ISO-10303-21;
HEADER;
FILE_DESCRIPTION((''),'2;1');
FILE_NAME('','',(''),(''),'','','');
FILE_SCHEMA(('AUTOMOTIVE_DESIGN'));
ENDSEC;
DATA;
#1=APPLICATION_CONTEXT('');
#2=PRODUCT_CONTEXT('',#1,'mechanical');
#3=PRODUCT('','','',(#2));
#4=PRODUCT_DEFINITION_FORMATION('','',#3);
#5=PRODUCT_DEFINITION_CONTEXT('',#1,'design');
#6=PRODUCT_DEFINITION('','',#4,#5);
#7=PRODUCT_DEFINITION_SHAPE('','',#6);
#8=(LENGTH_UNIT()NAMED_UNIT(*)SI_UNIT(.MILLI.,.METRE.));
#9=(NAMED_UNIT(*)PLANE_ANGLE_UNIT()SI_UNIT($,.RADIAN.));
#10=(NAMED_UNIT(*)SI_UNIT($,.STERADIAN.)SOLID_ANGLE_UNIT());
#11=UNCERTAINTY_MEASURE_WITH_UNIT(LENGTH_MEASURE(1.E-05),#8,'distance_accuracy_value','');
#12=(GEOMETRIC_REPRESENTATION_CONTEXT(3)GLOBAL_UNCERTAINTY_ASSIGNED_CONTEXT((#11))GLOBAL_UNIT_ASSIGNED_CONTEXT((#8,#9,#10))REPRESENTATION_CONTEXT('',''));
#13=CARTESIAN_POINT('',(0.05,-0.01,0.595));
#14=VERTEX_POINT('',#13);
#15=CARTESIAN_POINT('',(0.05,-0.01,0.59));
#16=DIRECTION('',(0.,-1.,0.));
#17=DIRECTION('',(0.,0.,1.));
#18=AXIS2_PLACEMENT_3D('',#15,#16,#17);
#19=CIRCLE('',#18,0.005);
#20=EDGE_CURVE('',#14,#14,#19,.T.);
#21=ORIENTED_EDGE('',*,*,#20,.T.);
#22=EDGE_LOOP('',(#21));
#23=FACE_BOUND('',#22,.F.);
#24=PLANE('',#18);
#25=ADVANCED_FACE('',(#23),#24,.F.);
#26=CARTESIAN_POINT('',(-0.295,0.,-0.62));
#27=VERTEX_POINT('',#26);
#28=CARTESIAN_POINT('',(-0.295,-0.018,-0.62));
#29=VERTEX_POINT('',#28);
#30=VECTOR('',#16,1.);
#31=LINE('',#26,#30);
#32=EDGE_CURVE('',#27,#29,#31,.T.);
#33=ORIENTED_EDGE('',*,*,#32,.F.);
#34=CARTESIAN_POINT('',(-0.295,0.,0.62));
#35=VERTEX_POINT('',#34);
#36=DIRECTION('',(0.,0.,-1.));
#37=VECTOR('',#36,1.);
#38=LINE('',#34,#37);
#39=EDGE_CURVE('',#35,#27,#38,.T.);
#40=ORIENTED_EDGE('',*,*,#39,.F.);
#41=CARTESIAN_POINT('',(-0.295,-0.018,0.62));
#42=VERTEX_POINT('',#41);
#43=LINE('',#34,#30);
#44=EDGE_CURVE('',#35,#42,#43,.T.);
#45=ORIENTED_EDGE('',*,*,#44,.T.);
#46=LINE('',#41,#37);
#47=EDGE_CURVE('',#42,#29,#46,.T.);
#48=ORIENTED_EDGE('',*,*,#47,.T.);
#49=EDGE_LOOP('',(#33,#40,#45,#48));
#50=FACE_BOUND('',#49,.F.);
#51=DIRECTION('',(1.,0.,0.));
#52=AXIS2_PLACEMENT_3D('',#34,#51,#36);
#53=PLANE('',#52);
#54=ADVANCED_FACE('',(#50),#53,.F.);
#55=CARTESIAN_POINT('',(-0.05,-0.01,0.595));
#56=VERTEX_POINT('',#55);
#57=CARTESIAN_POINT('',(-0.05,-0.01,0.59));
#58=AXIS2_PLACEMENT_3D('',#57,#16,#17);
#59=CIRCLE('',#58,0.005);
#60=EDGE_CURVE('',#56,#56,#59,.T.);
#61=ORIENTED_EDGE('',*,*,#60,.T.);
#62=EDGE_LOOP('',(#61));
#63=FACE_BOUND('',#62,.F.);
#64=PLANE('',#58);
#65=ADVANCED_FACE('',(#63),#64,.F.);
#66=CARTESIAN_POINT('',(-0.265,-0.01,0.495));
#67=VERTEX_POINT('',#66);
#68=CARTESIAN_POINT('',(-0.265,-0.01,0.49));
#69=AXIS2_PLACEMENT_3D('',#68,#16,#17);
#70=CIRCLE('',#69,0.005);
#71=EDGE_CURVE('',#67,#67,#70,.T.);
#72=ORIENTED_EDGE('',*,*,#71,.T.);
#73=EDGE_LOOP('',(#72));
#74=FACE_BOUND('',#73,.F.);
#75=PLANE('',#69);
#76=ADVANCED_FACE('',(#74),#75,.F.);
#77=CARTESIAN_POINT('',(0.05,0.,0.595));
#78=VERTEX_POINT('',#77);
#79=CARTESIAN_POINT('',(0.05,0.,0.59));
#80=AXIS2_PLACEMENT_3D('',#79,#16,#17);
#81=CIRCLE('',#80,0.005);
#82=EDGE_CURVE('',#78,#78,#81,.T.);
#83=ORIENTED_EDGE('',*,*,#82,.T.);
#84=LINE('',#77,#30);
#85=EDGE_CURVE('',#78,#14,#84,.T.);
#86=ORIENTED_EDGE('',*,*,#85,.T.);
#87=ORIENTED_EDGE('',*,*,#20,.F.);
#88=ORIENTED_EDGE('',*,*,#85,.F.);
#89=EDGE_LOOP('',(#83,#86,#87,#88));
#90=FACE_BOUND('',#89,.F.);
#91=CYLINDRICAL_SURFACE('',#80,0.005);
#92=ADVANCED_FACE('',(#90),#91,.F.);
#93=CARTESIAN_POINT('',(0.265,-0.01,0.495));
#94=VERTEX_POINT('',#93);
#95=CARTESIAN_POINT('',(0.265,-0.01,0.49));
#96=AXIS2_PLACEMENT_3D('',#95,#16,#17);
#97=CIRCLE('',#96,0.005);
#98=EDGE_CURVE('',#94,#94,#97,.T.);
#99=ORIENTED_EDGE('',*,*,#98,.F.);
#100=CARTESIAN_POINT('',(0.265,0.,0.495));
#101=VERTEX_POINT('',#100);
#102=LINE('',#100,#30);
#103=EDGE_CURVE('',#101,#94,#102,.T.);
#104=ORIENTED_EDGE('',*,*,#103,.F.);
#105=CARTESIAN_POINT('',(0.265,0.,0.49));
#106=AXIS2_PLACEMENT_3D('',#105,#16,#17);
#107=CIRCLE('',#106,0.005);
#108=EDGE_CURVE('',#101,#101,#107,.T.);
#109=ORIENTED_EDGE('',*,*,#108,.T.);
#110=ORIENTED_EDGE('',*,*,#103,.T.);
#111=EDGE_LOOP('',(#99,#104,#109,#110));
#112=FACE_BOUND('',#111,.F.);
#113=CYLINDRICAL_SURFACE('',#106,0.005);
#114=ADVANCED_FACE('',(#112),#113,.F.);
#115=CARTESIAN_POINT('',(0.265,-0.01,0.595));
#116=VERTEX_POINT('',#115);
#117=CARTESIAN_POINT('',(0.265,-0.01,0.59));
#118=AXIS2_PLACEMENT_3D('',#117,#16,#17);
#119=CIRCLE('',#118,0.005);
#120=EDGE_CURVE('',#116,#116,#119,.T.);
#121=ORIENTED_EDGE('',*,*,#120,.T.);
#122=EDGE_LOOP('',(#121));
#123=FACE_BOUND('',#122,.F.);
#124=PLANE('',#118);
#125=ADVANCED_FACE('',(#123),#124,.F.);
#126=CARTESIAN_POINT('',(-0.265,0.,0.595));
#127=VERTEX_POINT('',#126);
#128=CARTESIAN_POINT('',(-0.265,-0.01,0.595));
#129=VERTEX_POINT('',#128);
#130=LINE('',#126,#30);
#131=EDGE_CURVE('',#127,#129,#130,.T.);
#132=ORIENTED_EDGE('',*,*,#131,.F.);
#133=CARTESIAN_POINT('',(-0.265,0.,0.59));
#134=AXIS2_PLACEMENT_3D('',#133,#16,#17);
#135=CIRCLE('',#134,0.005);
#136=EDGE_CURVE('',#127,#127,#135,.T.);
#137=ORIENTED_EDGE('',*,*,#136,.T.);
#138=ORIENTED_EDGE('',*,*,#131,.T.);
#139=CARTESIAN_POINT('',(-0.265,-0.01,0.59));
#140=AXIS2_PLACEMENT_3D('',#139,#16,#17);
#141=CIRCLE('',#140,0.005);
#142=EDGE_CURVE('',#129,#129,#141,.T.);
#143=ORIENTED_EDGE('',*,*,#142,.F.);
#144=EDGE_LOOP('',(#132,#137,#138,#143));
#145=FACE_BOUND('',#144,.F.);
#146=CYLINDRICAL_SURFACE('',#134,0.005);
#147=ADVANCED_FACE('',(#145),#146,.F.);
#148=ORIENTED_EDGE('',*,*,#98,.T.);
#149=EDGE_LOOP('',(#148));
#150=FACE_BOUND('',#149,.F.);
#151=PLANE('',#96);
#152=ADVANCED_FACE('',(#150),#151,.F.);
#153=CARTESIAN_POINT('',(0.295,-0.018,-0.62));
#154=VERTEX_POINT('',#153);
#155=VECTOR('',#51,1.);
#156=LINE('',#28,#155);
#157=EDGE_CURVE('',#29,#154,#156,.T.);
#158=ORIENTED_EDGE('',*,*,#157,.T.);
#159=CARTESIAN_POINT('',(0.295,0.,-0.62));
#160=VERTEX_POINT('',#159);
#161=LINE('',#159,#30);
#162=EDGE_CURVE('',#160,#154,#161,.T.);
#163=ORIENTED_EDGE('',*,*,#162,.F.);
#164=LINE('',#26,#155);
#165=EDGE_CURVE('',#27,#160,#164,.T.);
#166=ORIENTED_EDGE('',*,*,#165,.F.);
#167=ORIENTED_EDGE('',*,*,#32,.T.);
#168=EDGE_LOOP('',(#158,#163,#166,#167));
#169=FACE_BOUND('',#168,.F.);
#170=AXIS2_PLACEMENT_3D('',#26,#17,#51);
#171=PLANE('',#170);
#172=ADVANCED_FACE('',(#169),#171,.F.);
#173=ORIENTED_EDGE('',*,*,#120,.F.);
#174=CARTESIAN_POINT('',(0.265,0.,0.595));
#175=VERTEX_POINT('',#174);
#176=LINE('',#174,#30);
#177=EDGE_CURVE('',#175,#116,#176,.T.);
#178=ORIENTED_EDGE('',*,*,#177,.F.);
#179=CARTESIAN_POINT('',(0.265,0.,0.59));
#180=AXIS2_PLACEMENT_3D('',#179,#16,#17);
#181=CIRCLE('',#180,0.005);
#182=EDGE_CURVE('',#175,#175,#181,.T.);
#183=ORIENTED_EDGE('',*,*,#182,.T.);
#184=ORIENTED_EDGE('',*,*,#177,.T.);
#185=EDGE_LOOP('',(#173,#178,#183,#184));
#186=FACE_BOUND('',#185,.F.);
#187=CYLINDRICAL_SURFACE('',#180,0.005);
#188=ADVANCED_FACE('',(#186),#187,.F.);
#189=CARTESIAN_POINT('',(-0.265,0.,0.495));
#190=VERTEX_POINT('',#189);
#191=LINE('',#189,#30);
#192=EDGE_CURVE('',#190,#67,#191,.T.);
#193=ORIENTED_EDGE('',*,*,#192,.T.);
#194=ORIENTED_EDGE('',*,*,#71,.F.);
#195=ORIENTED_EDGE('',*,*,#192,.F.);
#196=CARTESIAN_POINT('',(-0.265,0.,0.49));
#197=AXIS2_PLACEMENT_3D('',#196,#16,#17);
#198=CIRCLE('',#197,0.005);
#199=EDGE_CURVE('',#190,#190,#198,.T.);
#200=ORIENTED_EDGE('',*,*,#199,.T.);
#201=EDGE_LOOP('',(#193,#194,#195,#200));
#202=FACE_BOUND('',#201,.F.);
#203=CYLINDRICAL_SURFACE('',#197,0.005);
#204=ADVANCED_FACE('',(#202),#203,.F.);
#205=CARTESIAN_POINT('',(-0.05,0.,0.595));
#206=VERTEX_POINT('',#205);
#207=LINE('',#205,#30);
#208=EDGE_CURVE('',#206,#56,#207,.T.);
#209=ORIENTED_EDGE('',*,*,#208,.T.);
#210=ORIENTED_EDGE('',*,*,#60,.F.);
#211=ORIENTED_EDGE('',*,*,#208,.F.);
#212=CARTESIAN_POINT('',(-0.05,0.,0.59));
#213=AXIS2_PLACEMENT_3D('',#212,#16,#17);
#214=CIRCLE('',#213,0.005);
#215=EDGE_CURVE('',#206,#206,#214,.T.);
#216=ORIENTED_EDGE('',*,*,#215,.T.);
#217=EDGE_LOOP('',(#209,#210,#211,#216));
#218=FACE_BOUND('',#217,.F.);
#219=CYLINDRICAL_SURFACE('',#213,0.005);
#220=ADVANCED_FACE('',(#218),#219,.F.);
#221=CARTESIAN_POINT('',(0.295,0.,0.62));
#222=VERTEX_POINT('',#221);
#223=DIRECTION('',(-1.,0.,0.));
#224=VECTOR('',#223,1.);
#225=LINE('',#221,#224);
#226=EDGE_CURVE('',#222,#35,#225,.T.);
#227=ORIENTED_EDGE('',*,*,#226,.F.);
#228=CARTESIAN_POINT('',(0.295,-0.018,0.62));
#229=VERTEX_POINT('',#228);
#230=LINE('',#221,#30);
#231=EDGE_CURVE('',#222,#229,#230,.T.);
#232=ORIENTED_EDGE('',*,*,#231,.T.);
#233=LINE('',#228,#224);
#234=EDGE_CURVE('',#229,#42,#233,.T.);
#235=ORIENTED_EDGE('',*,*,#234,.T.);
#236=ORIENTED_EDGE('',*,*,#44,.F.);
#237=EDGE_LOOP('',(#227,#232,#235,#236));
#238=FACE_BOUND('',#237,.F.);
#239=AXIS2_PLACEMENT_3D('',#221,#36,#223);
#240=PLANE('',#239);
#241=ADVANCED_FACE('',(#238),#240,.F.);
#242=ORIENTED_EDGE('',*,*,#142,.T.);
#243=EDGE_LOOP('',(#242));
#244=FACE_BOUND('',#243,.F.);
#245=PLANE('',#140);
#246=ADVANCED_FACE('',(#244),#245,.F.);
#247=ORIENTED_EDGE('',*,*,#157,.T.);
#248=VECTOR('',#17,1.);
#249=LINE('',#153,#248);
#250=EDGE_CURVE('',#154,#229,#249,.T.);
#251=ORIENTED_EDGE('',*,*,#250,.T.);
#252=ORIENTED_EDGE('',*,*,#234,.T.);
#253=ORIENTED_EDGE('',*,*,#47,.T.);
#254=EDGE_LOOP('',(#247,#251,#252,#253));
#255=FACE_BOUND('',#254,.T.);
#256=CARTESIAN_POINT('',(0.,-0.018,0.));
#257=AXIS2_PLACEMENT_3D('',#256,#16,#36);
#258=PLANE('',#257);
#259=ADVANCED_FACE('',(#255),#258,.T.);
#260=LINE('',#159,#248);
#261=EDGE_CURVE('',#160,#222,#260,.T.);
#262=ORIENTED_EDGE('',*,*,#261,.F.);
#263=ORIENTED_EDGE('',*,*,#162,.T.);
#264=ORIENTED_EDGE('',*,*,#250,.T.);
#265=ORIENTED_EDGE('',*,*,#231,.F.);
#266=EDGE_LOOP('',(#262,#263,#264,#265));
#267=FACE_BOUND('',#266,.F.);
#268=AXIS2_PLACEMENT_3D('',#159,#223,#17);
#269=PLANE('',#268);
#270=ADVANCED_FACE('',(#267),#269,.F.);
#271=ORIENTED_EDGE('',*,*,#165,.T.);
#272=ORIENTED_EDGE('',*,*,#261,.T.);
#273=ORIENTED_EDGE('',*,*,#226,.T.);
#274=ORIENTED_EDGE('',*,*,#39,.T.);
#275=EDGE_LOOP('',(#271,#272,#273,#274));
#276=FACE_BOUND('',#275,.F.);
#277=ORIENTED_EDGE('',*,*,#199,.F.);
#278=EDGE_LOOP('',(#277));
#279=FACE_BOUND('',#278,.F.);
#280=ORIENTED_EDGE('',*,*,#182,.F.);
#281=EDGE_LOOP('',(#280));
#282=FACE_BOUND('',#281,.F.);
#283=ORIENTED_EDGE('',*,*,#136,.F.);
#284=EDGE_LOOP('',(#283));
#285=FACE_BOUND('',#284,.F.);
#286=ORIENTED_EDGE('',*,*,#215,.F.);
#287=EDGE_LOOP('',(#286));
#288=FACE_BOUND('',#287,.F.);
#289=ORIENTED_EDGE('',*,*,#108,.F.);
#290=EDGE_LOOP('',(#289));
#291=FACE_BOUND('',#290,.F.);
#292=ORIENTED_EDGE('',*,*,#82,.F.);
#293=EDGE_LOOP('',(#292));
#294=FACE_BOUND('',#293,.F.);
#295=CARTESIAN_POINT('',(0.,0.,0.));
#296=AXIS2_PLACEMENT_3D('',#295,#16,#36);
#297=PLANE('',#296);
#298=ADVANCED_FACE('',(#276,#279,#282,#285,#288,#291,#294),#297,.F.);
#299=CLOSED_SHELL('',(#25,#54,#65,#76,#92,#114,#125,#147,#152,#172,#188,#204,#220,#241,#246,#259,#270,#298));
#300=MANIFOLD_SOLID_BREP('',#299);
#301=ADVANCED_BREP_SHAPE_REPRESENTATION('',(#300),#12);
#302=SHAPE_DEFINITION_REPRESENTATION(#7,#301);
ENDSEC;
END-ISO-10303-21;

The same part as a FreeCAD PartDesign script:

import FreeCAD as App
import Part
import Sketcher
from FreeCAD import Vector
Q = App.Units.Quantity

doc = App.newDocument("Part")
body = doc.addObject("PartDesign::Body", "Body")

sketch1 = body.newObject("Sketcher::SketchObject", "Sketch")
sketch1.AttachmentSupport = (doc.getObject("XZ_Plane"), [""])
sketch1.MapMode = "FlatFace"
sketch1.addGeometry([
    Part.LineSegment(Vector(-0.295, 0.62, 0), Vector(-0.295, -0.62, 0)),
    Part.LineSegment(Vector(-0.295, -0.62, 0), Vector(0.295, -0.62, 0)),
    Part.LineSegment(Vector(0.295, -0.62, 0), Vector(0.295, 0.62, 0)),
    Part.LineSegment(Vector(0.295, 0.62, 0), Vector(-0.295, 0.62, 0)),
], False)
sketch1.addConstraint([
    Sketcher.Constraint("Coincident", 0, 2, 1, 1),
    Sketcher.Constraint("Coincident", 1, 2, 2, 1),
    Sketcher.Constraint("Coincident", 2, 2, 3, 1),
    Sketcher.Constraint("Coincident", 3, 2, 0, 1),
    Sketcher.Constraint("Vertical", 0),
    Sketcher.Constraint("Horizontal", 1),
    Sketcher.Constraint("Vertical", 2),
    Sketcher.Constraint("Horizontal", 3),
    Sketcher.Constraint("Symmetric", 0, 2, 2, 2, -1, 1),
    Sketcher.Constraint("DistanceX", 0, 2, -1, 1, Q("0.295 mm")),
    Sketcher.Constraint("DistanceY", 0, 2, 0, 1, Q("1.24 mm")),
])
pad1 = body.newObject("PartDesign::Pad", "Pad")
pad1.Profile = sketch1
pad1.Length = 0.018

sketch2 = body.newObject("Sketcher::SketchObject", "Sketch001")
sketch2.AttachmentSupport = (doc.getObject("XZ_Plane"), [""])
sketch2.MapMode = "FlatFace"
sketch2.addGeometry(Part.Circle(Vector(-0.05, 0.59, 0), Vector(0, 0, 1), 0.005), False)
sketch2.addConstraint([
    Sketcher.Constraint("Diameter", 0, Q("0.01 mm")),
    Sketcher.Constraint("DistanceX", 0, 3, -1, 1, Q("0.05 mm")),
    Sketcher.Constraint("DistanceY", -1, 1, 0, 3, Q("0.59 mm")),
])
doc.recompute()
hole = body.newObject("PartDesign::Hole", "Hole")
hole.Profile = sketch2
hole.ThreadType = "None"
hole.Diameter = 0.01
hole.DepthType = "Dimension"
hole.Depth = 0.01
hole.DrillPoint = "Flat"
hole.Reversed = True

sketch3 = body.newObject("Sketcher::SketchObject", "Sketch002")
sketch3.AttachmentSupport = (doc.getObject("XZ_Plane"), [""])
sketch3.MapMode = "FlatFace"
sketch3.addGeometry(Part.Circle(Vector(0.05, 0.59, 0), Vector(0, 0, 1), 0.005), False)
sketch3.addConstraint([
    Sketcher.Constraint("Diameter", 0, Q("0.01 mm")),
    Sketcher.Constraint("DistanceX", -1, 1, 0, 3, Q("0.05 mm")),
    Sketcher.Constraint("DistanceY", -1, 1, 0, 3, Q("0.59 mm")),
])
doc.recompute()
hole2 = body.newObject("PartDesign::Hole", "Hole001")
hole2.Profile = sketch3
hole2.ThreadType = "None"
hole2.Diameter = 0.01
hole2.DepthType = "Dimension"
hole2.Depth = 0.01
hole2.DrillPoint = "Flat"
hole2.Reversed = True

sketch4 = body.newObject("Sketcher::SketchObject", "Sketch003")
sketch4.AttachmentSupport = (doc.getObject("XZ_Plane"), [""])
sketch4.MapMode = "FlatFace"
sketch4.addGeometry(Part.Circle(Vector(0.265, 0.59, 0), Vector(0, 0, 1), 0.005), False)
sketch4.addConstraint([
    Sketcher.Constraint("Diameter", 0, Q("0.01 mm")),
    Sketcher.Constraint("DistanceY", -1, 1, 0, 3, Q("0.59 mm")),
    Sketcher.Constraint("DistanceX", -1, 1, 0, 3, Q("0.265 mm")),
])
doc.recompute()
hole3 = body.newObject("PartDesign::Hole", "Hole002")
hole3.Profile = sketch4
hole3.ThreadType = "None"
hole3.Diameter = 0.01
hole3.DepthType = "Dimension"
hole3.Depth = 0.01
hole3.DrillPoint = "Flat"
hole3.Reversed = True

sketch5 = body.newObject("Sketcher::SketchObject", "Sketch004")
sketch5.AttachmentSupport = (doc.getObject("XZ_Plane"), [""])
sketch5.MapMode = "FlatFace"
sketch5.addGeometry(Part.Circle(Vector(0.265, 0.49, 0), Vector(0, 0, 1), 0.005), False)
sketch5.addConstraint([
    Sketcher.Constraint("Diameter", 0, Q("0.01 mm")),
    Sketcher.Constraint("DistanceY", -1, 1, 0, 3, Q("0.49 mm")),
    Sketcher.Constraint("DistanceX", -1, 1, 0, 3, Q("0.265 mm")),
])
doc.recompute()
hole4 = body.newObject("PartDesign::Hole", "Hole003")
hole4.Profile = sketch5
hole4.ThreadType = "None"
hole4.Diameter = 0.01
hole4.DepthType = "Dimension"
hole4.Depth = 0.01
hole4.DrillPoint = "Flat"
hole4.Reversed = True

sketch6 = body.newObject("Sketcher::SketchObject", "Sketch005")
sketch6.AttachmentSupport = (doc.getObject("XZ_Plane"), [""])
sketch6.MapMode = "FlatFace"
sketch6.addGeometry(Part.Circle(Vector(-0.265, 0.49, 0), Vector(0, 0, 1), 0.005), False)
sketch6.addConstraint([
    Sketcher.Constraint("Diameter", 0, Q("0.01 mm")),
    Sketcher.Constraint("DistanceY", -1, 1, 0, 3, Q("0.49 mm")),
    Sketcher.Constraint("DistanceX", 0, 3, -1, 1, Q("0.265 mm")),
])
doc.recompute()
hole5 = body.newObject("PartDesign::Hole", "Hole004")
hole5.Profile = sketch6
hole5.ThreadType = "None"
hole5.Diameter = 0.01
hole5.DepthType = "Dimension"
hole5.Depth = 0.01
hole5.DrillPoint = "Flat"
hole5.Reversed = True

sketch7 = body.newObject("Sketcher::SketchObject", "Sketch006")
sketch7.AttachmentSupport = (doc.getObject("XZ_Plane"), [""])
sketch7.MapMode = "FlatFace"
sketch7.addGeometry(Part.Circle(Vector(-0.265, 0.59, 0), Vector(0, 0, 1), 0.005), False)
sketch7.addConstraint([
    Sketcher.Constraint("Diameter", 0, Q("0.01 mm")),
    Sketcher.Constraint("DistanceY", -1, 1, 0, 3, Q("0.59 mm")),
    Sketcher.Constraint("DistanceX", 0, 3, -1, 1, Q("0.265 mm")),
])
doc.recompute()
hole6 = body.newObject("PartDesign::Hole", "Hole005")
hole6.Profile = sketch7
hole6.ThreadType = "None"
hole6.Diameter = 0.01
hole6.DepthType = "Dimension"
hole6.Depth = 0.01
hole6.DrillPoint = "Flat"
hole6.Reversed = True

doc.recompute()
